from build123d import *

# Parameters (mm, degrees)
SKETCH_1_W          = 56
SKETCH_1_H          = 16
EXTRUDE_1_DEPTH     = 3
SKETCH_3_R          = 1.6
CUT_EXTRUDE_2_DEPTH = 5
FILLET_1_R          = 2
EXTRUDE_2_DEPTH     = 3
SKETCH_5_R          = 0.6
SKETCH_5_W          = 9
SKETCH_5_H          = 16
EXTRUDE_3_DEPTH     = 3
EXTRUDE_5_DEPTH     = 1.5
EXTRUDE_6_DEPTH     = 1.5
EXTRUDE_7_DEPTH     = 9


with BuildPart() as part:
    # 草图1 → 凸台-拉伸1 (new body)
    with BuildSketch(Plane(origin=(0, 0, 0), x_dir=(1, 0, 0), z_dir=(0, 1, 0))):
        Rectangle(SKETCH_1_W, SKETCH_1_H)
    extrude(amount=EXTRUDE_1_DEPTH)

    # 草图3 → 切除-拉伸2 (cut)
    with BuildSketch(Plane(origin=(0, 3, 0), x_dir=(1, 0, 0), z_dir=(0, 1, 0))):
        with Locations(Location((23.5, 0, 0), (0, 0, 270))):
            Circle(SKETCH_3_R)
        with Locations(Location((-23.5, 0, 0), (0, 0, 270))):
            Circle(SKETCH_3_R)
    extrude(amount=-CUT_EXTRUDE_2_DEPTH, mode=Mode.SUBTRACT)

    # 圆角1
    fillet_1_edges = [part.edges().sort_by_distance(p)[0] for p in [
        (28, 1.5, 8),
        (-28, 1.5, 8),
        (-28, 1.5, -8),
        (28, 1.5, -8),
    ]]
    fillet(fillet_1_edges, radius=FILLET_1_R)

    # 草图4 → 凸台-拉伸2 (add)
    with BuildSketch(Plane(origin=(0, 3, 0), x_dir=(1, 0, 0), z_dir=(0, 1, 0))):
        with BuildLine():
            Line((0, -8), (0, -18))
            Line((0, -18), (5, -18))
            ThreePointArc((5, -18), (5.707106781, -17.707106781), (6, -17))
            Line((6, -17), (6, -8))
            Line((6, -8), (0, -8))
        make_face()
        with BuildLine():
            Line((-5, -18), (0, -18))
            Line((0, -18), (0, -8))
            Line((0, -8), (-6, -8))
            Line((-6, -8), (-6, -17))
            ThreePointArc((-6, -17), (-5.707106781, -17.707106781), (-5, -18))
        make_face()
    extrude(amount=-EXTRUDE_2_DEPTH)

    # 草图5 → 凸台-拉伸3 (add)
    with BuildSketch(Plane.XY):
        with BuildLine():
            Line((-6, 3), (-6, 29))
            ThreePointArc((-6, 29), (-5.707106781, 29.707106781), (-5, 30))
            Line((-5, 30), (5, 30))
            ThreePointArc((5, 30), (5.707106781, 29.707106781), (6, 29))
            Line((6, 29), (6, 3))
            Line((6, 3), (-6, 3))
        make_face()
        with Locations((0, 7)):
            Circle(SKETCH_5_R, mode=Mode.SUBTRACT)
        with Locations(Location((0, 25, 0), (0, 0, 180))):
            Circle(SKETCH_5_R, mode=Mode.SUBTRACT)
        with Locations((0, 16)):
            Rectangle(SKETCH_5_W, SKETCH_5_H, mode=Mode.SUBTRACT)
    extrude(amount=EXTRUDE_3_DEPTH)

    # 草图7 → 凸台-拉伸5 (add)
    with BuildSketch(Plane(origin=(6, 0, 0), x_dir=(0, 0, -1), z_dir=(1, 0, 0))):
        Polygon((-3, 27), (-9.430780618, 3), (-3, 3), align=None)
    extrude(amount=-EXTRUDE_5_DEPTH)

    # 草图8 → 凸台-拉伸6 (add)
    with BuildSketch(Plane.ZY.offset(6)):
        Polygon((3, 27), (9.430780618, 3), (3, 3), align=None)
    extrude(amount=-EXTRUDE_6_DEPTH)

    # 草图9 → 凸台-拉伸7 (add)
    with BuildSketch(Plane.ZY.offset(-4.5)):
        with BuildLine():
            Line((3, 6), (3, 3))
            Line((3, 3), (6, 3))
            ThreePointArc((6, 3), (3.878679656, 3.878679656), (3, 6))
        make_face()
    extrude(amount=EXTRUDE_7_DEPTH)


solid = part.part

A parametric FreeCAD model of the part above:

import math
import FreeCAD as App
import Part
import Sketcher

V = App.Vector
Q = App.Units.Quantity


def edges_at(feature, points):
    """Names of the edges that pass closest to the given points."""
    edges = feature.Shape.Edges
    near = lambda p: min(range(len(edges)), key=lambda i: edges[i].distToShape(Part.Vertex(*p))[0])
    return sorted({f"Edge{near(p) + 1}" for p in points})


def add_polygon(sketch, points):
    """Adds a closed chain of lines whose ends are joined by coincident constraints."""
    first, n = sketch.GeometryCount, len(points)
    for a, b in zip(points, points[1:] + points[:1]):
        sketch.addGeometry(Part.LineSegment(App.Vector(*a, 0), App.Vector(*b, 0)), False)
    for i in range(n):
        sketch.addConstraint(Sketcher.Constraint("Coincident", first + i, 2, first + (i + 1) % n, 1))

doc = App.newDocument("Part")
body = doc.addObject("PartDesign::Body", "Body")

# Sketch on XZ plane
sketch1 = body.newObject("Sketcher::SketchObject", "Sketch")
sketch1.AttachmentSupport = (doc.getObject("XZ_Plane"), [""])
sketch1.MapMode = "FlatFace"
add_polygon(sketch1, [(-28, -8), (-28, 8), (28, 8), (28, -8)])  # lines 0-3
sketch1.addConstraint(Sketcher.Constraint("Vertical", 0))
sketch1.addConstraint(Sketcher.Constraint("Horizontal", 1))
sketch1.addConstraint(Sketcher.Constraint("Vertical", 2))
sketch1.addConstraint(Sketcher.Constraint("Horizontal", 3))
sketch1.addConstraint(Sketcher.Constraint("Symmetric", 0, 2, 2, 2, -1, 1))
sketch1.addConstraint(Sketcher.Constraint("DistanceX", 1, 1, 1, 2, Q("56 mm")))
sketch1.addConstraint(Sketcher.Constraint("DistanceY", 0, 1, 0, 2, Q("16 mm")))
pad1 = body.newObject("PartDesign::Pad", "Pad")
pad1.Profile = sketch1
pad1.Length = 3
pad1.Reversed = True

# Sketch on XZ plane
sketch2 = body.newObject("Sketcher::SketchObject", "Sketch001")
sketch2.AttachmentSupport = (doc.getObject("XZ_Plane"), [""])
sketch2.MapMode = "FlatFace"
sketch2.AttachmentOffset = App.Placement(V(0, 0, -3), App.Rotation())
sketch2.addGeometry(Part.Circle(V(23.5, 0, 0), V(0, 0, 1), 1.6), False)
sketch2.addGeometry(Part.Circle(V(-23.5, 0, 0), V(0, 0, 1), 1.6), False)
sketch2.addConstraint(Sketcher.Constraint("Equal", 0, 1))
sketch2.addConstraint(Sketcher.Constraint("Symmetric", 0, 3, 1, 3, -1, 1))
sketch2.addConstraint(Sketcher.Constraint("PointOnObject", 0, 3, -1))
sketch2.addConstraint(Sketcher.Constraint("Diameter", 0, Q("3.2 mm")))
sketch2.addConstraint(Sketcher.Constraint("DistanceX", 1, 3, 0, 3, Q("47 mm")))
pocket1 = body.newObject("PartDesign::Pocket", "Pocket")
pocket1.Profile = sketch2
pocket1.Length = 5
pocket1.Reversed = True
doc.recompute()

fillet = body.newObject("PartDesign::Fillet", "Fillet")
fillet.Base = (pocket1, edges_at(pocket1, [
    (28, 1.5, 8),
    (-28, 1.5, 8),
    (-28, 1.5, -8),
    (28, 1.5, -8),
]))
fillet.Radius = 2

# Sketch on XZ plane
sketch3 = body.newObject("Sketcher::SketchObject", "Sketch002")
sketch3.AttachmentSupport = (doc.getObject("XZ_Plane"), [""])
sketch3.MapMode = "FlatFace"
sketch3.AttachmentOffset = App.Placement(V(0, 0, -3), App.Rotation())
sketch3.addGeometry(Part.ArcOfCircle(Part.Circle(V(5, 17, 0), V(0, 0, 1), 1), math.radians(0), math.radians(90)), False)
sketch3.addGeometry(Part.LineSegment(V(6, 17, 0), V(6, 8, 0)), False)
sketch3.addGeometry(Part.LineSegment(V(6, 8, 0), V(-6, 8, 0)), False)
sketch3.addGeometry(Part.LineSegment(V(-6, 8, 0), V(-6, 17, 0)), False)
sketch3.addGeometry(Part.ArcOfCircle(Part.Circle(V(-5, 17, 0), V(0, 0, 1), 1), math.radians(90), math.radians(180)), False)
sketch3.addGeometry(Part.LineSegment(V(-5, 18, 0), V(5, 18, 0)), False)
sketch3.addConstraint(Sketcher.Constraint("Tangent", 0, 1, 1, 1))
sketch3.addConstraint(Sketcher.Constraint("Coincident", 1, 2, 2, 1))
sketch3.addConstraint(Sketcher.Constraint("Coincident", 2, 2, 3, 1))
sketch3.addConstraint(Sketcher.Constraint("Tangent", 3, 2, 4, 2))
sketch3.addConstraint(Sketcher.Constraint("Tangent", 4, 1, 5, 1))
sketch3.addConstraint(Sketcher.Constraint("Tangent", 5, 2, 0, 2))
sketch3.addConstraint(Sketcher.Constraint("Vertical", 1))
sketch3.addConstraint(Sketcher.Constraint("Horizontal", 2))
sketch3.addConstraint(Sketcher.Constraint("Vertical", 3))
sketch3.addConstraint(Sketcher.Constraint("Horizontal", 5))
sketch3.addConstraint(Sketcher.Constraint("Equal", 0, 4))
sketch3.addConstraint(Sketcher.Constraint("Radius", 0, Q("1 mm")))
sketch3.addConstraint(Sketcher.Constraint("DistanceX", 2, 2, 2, 1, Q("12 mm")))
sketch3.addConstraint(Sketcher.Constraint("DistanceY", 1, 2, 1, 1, Q("9 mm")))
sketch3.addConstraint(Sketcher.Constraint("DistanceX", -1, 1, 0, 3, Q("5 mm")))
sketch3.addConstraint(Sketcher.Constraint("DistanceY", -1, 1, 0, 3, Q("17 mm")))
pad2 = body.newObject("PartDesign::Pad", "Pad001")
pad2.Profile = sketch3
pad2.Length = 3

# Sketch on XY plane
sketch4 = body.newObject("Sketcher::SketchObject", "Sketch003")
sketch4.AttachmentSupport = (doc.getObject("XY_Plane"), [""])
sketch4.MapMode = "FlatFace"
sketch4.addGeometry(Part.LineSegment(V(-6, 29, 0), V(-6, 3, 0)), False)  # 0
sketch4.addGeometry(Part.LineSegment(V(-6, 3, 0), V(6, 3, 0)), False)  # 1
sketch4.addGeometry(Part.LineSegment(V(6, 3, 0), V(6, 29, 0)), False)  # 2
sketch4.addGeometry(Part.ArcOfCircle(Part.Circle(V(5, 29, 0), V(0, 0, 1), 1), math.radians(0), math.radians(90)), False)  # 3
sketch4.addGeometry(Part.LineSegment(V(5, 30, 0), V(-5, 30, 0)), False)  # 4
sketch4.addGeometry(Part.ArcOfCircle(Part.Circle(V(-5, 29, 0), V(0, 0, 1), 1), math.radians(90), math.radians(180)), False)  # 5
sketch4.addGeometry(Part.Circle(V(0, 7, 0), V(0, 0, 1), 0.6), False)  # 6
add_polygon(sketch4, [(-4.5, 8), (-4.5, 24), (4.5, 24), (4.5, 8)])  # lines 7-10
sketch4.addGeometry(Part.Circle(V(0, 25, 0), V(0, 0, 1), 0.6), False)  # 11
sketch4.addConstraint(Sketcher.Constraint("Coincident", 0, 2, 1, 1))
sketch4.addConstraint(Sketcher.Constraint("Coincident", 1, 2, 2, 1))
sketch4.addConstraint(Sketcher.Constraint("Tangent", 2, 2, 3, 1))
sketch4.addConstraint(Sketcher.Constraint("Tangent", 3, 2, 4, 1))
sketch4.addConstraint(Sketcher.Constraint("Tangent", 4, 2, 5, 1))
sketch4.addConstraint(Sketcher.Constraint("Tangent", 5, 2, 0, 1))
sketch4.addConstraint(Sketcher.Constraint("Vertical", 0))
sketch4.addConstraint(Sketcher.Constraint("Horizontal", 1))
sketch4.addConstraint(Sketcher.Constraint("Vertical", 2))
sketch4.addConstraint(Sketcher.Constraint("Horizontal", 4))
sketch4.addConstraint(Sketcher.Constraint("Vertical", 7))
sketch4.addConstraint(Sketcher.Constraint("Horizontal", 8))
sketch4.addConstraint(Sketcher.Constraint("Vertical", 9))
sketch4.addConstraint(Sketcher.Constraint("Horizontal", 10))
sketch4.addConstraint(Sketcher.Constraint("Equal", 3, 5))
sketch4.addConstraint(Sketcher.Constraint("Equal", 6, 11))
sketch4.addConstraint(Sketcher.Constraint("PointOnObject", 6, 3, -2))
sketch4.addConstraint(Sketcher.Constraint("PointOnObject", 11, 3, -2))
sketch4.addConstraint(Sketcher.Constraint("Radius", 3, Q("1 mm")))
sketch4.addConstraint(Sketcher.Constraint("Diameter", 6, Q("1.2 mm")))
sketch4.addConstraint(Sketcher.Constraint("DistanceX", 1, 1, 1, 2, Q("12 mm")))
sketch4.addConstraint(Sketcher.Constraint("DistanceX", 8, 1, 8, 2, Q("9 mm")))
sketch4.addConstraint(Sketcher.Constraint("DistanceY", 0, 2, 0, 1, Q("26 mm")))
sketch4.addConstraint(Sketcher.Constraint("DistanceY", 7, 1, 7, 2, Q("16 mm")))
sketch4.addConstraint(Sketcher.Constraint("DistanceX", -1, 1, 3, 3, Q("5 mm")))
sketch4.addConstraint(Sketcher.Constraint("DistanceY", -1, 1, 3, 3, Q("29 mm")))
sketch4.addConstraint(Sketcher.Constraint("DistanceY", -1, 1, 6, 3, Q("7 mm")))
sketch4.addConstraint(Sketcher.Constraint("DistanceY", -1, 1, 11, 3, Q("25 mm")))
sketch4.addConstraint(Sketcher.Constraint("DistanceY", -1, 1, 7, 2, Q("24 mm")))
sketch4.addConstraint(Sketcher.Constraint("DistanceX", 7, 2, -1, 1, Q("4.5 mm")))
pad3 = body.newObject("PartDesign::Pad", "Pad002")
pad3.Profile = sketch4
pad3.Length = 3

# Sketch on YZ plane
sketch5 = body.newObject("Sketcher::SketchObject", "Sketch004")
sketch5.AttachmentSupport = (doc.getObject("YZ_Plane"), [""])
sketch5.MapMode = "FlatFace"
sketch5.AttachmentOffset = App.Placement(V(0, 0, 6), App.Rotation())
add_polygon(sketch5, [(27, 3), (3, 9), (3, 3)])  # lines 0-2
sketch5.addConstraint(Sketcher.Constraint("Vertical", 1))
sketch5.addConstraint(Sketcher.Constraint("Horizontal", 2))
sketch5.addConstraint(Sketcher.Constraint("DistanceX", 2, 1, 2, 2, Q("24 mm")))
sketch5.addConstraint(Sketcher.Constraint("Angle", 0, Q("165 deg")))
sketch5.addConstraint(Sketcher.Constraint("DistanceX", -1, 1, 0, 2, Q("3 mm")))
sketch5.addConstraint(Sketcher.Constraint("DistanceY", -1, 1, 1, 2, Q("3 mm")))
pad4 = body.newObject("PartDesign::Pad", "Pad003")
pad4.Profile = sketch5
pad4.Length = 1.5
pad4.Reversed = True

# Sketch on YZ plane
sketch6 = body.newObject("Sketcher::SketchObject", "Sketch005")
sketch6.AttachmentSupport = (doc.getObject("YZ_Plane"), [""])
sketch6.MapMode = "FlatFace"
sketch6.AttachmentOffset = App.Placement(V(0, 0, -6), App.Rotation())
add_polygon(sketch6, [(3, 9), (27, 3), (3, 3)])  # lines 0-2
sketch6.addConstraint(Sketcher.Constraint("Horizontal", 1))
sketch6.addConstraint(Sketcher.Constraint("Vertical", 2))
sketch6.addConstraint(Sketcher.Constraint("DistanceX", 1, 2, 1, 1, Q("24 mm")))
sketch6.addConstraint(Sketcher.Constraint("Angle", 0, Q("-15 deg")))
sketch6.addConstraint(Sketcher.Constraint("DistanceX", -1, 1, 0, 2, Q("27 mm")))
sketch6.addConstraint(Sketcher.Constraint("DistanceY", -1, 1, 0, 2, Q("3 mm")))
pad5 = body.newObject("PartDesign::Pad", "Pad004")
pad5.Profile = sketch6
pad5.Length = 1.5

# Sketch on YZ plane
sketch7 = body.newObject("Sketcher::SketchObject", "Sketch006")
sketch7.AttachmentSupport = (doc.getObject("YZ_Plane"), [""])
sketch7.MapMode = "FlatFace"
sketch7.AttachmentOffset = App.Placement(V(0, 0, 4.5), App.Rotation())
sketch7.addGeometry(Part.LineSegment(V(6, 3, 0), V(3, 3, 0)), False)
sketch7.addGeometry(Part.LineSegment(V(3, 3, 0), V(3, 6, 0)), False)
sketch7.addGeometry(Part.ArcOfCircle(Part.Circle(V(6, 6, 0), V(0, 0, 1), 3), math.radians(180), math.radians(270)), False)
sketch7.addConstraint(Sketcher.Constraint("Coincident", 0, 2, 1, 1))
sketch7.addConstraint(Sketcher.Constraint("Tangent", 1, 2, 2, 1))
sketch7.addConstraint(Sketcher.Constraint("Tangent", 2, 2, 0, 1))
sketch7.addConstraint(Sketcher.Constraint("Horizontal", 0))
sketch7.addConstraint(Sketcher.Constraint("Vertical", 1))
sketch7.addConstraint(Sketcher.Constraint("Radius", 2, Q("3 mm")))
sketch7.addConstraint(Sketcher.Constraint("DistanceX", -1, 1, 2, 3, Q("6 mm")))
sketch7.addConstraint(Sketcher.Constraint("DistanceY", -1, 1, 2, 3, Q("6 mm")))
pad6 = body.newObject("PartDesign::Pad", "Pad005")
pad6.Profile = sketch7
pad6.Length = 9
pad6.Reversed = True

doc.recompute()
